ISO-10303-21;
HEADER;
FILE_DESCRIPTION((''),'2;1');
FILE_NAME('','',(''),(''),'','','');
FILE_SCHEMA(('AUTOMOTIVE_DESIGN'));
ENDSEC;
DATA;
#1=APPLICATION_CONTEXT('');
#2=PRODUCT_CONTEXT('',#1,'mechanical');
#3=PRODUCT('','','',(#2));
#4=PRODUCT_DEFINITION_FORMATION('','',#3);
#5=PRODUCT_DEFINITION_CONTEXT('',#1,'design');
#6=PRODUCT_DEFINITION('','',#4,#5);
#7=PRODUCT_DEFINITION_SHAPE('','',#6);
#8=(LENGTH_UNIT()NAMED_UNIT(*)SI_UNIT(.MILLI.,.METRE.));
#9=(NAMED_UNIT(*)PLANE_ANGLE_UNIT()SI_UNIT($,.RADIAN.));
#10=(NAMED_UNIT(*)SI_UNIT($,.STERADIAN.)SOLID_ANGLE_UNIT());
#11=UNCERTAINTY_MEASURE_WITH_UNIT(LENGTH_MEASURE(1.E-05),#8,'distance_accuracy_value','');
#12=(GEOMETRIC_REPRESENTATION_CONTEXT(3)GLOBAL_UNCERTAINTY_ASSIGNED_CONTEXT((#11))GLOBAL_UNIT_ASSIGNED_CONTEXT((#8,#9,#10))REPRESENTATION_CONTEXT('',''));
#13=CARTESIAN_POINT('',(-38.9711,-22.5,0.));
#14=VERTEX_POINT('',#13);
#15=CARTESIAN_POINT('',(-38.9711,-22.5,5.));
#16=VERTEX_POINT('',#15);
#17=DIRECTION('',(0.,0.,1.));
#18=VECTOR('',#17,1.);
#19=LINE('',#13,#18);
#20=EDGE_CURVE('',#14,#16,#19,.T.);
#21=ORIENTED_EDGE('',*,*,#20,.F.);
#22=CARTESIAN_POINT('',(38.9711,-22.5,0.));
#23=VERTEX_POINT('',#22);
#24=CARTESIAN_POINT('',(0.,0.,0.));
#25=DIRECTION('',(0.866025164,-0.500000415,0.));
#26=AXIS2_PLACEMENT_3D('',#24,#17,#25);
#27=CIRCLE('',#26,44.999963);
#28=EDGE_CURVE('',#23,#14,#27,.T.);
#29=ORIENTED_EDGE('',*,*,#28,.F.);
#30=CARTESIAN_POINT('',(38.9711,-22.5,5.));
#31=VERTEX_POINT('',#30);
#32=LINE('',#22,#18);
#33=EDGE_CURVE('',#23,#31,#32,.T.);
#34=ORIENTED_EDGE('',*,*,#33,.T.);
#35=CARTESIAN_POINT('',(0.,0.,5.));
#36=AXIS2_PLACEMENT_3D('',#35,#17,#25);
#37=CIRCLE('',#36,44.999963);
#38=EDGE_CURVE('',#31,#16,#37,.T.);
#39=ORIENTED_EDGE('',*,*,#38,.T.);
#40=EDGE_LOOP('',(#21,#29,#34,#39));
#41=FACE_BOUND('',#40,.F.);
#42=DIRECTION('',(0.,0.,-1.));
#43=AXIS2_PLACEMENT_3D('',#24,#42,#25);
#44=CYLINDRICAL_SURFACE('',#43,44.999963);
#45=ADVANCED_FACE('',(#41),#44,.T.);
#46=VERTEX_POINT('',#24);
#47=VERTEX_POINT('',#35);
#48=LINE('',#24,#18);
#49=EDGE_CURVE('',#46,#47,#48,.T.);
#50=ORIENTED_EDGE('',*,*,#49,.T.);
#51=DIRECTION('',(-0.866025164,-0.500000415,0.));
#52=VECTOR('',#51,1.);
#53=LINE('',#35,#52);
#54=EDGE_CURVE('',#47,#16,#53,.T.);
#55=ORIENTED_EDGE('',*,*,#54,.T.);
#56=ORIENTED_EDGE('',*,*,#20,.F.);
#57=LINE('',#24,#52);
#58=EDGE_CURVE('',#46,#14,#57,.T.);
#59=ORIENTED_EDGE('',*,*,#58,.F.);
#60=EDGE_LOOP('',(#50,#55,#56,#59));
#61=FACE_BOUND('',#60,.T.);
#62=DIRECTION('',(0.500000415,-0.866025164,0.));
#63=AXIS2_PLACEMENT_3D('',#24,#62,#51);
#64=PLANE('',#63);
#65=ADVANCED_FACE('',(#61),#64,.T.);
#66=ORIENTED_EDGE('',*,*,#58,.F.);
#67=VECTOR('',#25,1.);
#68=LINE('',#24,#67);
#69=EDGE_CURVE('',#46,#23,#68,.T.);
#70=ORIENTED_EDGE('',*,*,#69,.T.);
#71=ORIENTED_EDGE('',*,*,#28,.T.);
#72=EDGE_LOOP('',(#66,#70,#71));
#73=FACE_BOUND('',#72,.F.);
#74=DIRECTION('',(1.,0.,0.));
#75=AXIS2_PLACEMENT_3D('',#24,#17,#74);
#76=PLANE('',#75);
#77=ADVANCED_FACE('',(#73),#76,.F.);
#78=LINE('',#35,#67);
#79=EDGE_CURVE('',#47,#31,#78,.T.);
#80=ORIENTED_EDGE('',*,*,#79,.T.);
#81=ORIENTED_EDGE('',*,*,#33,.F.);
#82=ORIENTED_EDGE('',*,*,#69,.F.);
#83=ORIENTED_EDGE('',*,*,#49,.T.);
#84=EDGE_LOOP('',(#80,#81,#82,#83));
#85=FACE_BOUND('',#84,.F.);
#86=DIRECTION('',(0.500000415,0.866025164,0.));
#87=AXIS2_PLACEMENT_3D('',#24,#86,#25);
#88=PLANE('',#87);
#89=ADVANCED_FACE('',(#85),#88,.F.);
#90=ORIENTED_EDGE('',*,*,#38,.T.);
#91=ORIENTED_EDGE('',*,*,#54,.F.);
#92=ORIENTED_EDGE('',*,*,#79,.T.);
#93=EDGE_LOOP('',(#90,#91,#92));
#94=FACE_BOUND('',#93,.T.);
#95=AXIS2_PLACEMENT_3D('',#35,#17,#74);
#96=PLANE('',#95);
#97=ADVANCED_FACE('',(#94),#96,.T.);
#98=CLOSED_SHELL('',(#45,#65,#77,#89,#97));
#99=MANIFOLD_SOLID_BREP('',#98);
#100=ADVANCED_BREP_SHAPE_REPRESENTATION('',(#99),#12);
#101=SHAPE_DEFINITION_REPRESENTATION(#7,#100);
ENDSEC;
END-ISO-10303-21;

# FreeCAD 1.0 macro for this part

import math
import FreeCAD as App
import Part
import Sketcher
from FreeCAD import Vector
Q = App.Units.Quantity

doc = App.newDocument("Part")
body = doc.addObject("PartDesign::Body", "Body")

sketch1 = doc.addObject("Sketcher::SketchObject", "Sketch")
body.addObject(sketch1)
sketch1.AttachmentSupport = (doc.XY_Plane, [""])
sketch1.MapMode = "FlatFace"
sketch1.addGeometry([
    Part.LineSegment(Vector(0, 0, 0), Vector(39, -22, 0)),
    Part.ArcOfCircle(Part.Circle(Vector(0, 0, 0), Vector(0, 0, 1), 45), math.radians(-30), math.radians(210)),
    Part.LineSegment(Vector(-39, -22, 0), Vector(0, 0, 0)),
], False)
sketch1.addConstraint([
    Sketcher.Constraint("Coincident", 0, 2, 1, 1),
    Sketcher.Constraint("Coincident", 1, 2, 2, 1),
    Sketcher.Constraint("Coincident", 2, 2, 0, 1),
    Sketcher.Constraint("Coincident", 1, 3, -1, 1),
    Sketcher.Constraint("Coincident", 2, 2, -1, 1),
    Sketcher.Constraint("Horizontal", 0, 2, 1, 2),
    Sketcher.Constraint("Radius", 1, Q("45 mm")),
    Sketcher.Constraint("Angle", 0, Q("-30 deg")),
])
pad1 = doc.addObject("PartDesign::Pad", "Pad")
body.addObject(pad1)
pad1.Profile = sketch1
pad1.Length = 5

doc.recompute()
